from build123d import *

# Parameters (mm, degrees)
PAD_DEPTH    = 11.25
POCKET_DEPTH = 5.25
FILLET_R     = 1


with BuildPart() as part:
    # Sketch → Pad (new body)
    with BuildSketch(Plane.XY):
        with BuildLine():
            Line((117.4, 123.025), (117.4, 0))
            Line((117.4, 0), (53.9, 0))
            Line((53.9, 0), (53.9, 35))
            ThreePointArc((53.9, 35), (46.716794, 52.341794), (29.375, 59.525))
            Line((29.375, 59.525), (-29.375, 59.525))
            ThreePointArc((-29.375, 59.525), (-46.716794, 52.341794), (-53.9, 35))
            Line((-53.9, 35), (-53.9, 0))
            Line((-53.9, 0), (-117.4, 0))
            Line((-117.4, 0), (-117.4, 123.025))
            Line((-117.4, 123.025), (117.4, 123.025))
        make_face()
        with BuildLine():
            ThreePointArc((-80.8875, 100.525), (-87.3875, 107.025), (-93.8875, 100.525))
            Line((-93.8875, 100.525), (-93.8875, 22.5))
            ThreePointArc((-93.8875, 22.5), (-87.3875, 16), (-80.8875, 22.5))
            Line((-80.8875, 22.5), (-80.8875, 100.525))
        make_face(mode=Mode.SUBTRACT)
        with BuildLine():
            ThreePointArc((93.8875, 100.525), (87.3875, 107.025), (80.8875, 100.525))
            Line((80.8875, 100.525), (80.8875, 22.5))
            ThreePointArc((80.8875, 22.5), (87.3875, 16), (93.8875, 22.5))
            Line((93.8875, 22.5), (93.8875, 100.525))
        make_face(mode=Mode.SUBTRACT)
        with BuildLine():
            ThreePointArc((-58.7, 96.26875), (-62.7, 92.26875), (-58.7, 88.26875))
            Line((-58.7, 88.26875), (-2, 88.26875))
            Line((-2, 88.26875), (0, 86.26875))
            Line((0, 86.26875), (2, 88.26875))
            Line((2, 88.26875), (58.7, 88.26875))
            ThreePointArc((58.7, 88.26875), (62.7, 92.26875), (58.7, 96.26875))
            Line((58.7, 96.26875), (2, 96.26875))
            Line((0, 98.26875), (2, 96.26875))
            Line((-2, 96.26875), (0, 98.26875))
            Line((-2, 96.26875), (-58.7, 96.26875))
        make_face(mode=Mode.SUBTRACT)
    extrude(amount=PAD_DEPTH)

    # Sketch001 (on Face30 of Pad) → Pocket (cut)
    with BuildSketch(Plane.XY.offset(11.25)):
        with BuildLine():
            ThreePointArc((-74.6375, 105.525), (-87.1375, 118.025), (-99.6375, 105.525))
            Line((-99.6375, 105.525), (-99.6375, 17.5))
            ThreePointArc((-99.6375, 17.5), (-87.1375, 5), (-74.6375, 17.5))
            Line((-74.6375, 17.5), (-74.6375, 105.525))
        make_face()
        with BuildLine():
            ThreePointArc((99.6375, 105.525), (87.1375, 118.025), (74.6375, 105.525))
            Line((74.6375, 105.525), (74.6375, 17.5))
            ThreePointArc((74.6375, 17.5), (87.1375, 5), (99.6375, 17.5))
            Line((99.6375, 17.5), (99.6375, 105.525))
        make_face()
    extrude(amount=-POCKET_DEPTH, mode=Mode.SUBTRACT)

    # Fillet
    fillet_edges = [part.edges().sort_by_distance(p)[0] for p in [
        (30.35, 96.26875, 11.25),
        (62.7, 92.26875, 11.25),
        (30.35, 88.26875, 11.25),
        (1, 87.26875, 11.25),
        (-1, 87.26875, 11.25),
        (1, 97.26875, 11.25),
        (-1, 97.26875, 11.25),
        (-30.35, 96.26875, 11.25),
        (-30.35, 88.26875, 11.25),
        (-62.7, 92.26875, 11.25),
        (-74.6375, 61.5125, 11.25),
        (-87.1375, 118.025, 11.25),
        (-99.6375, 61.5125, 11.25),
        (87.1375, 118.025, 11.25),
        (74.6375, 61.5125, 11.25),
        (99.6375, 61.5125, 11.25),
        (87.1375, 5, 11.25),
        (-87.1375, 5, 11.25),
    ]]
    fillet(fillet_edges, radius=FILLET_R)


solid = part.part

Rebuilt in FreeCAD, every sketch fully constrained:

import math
import FreeCAD as App
import Part
import Sketcher

V = App.Vector


def edges_at(feature, points):
    """Names of the edges that pass closest to the given points."""
    edges = feature.Shape.Edges
    near = lambda p: min(range(len(edges)), key=lambda i: edges[i].distToShape(Part.Vertex(*p))[0])
    return sorted({f"Edge{near(p) + 1}" for p in points})

doc = App.newDocument("Part")
body = doc.addObject("PartDesign::Body", "Body")

# Sketch on XY plane
sketch1 = body.newObject("Sketcher::SketchObject", "Sketch")
sketch1.AttachmentSupport = (doc.getObject("XY_Plane"), [""])
sketch1.MapMode = "FlatFace"
sketch1.addGeometry(Part.LineSegment(V(117.4, 0, 0), V(117.4, 123, 0)), False)
sketch1.addGeometry(Part.LineSegment(V(117.4, 123, 0), V(-117.4, 123, 0)), False)
sketch1.addGeometry(Part.LineSegment(V(-117.4, 123, 0), V(-117.4, 0, 0)), False)
sketch1.addGeometry(Part.LineSegment(V(-117.4, 0, 0), V(-53.9, 0, 0)), False)
sketch1.addGeometry(Part.LineSegment(V(-53.9, 0, 0), V(-53.9, 35, 0)), False)
sketch1.addGeometry(Part.ArcOfCircle(Part.Circle(V(-29.4, 35, 0), V(0, 0, 1), 24.5), math.radians(90), math.radians(180)), False)
sketch1.addGeometry(Part.LineSegment(V(-29.4, 59.5, 0), V(29.4, 59.5, 0)), False)
sketch1.addGeometry(Part.ArcOfCircle(Part.Circle(V(29.4, 35, 0), V(0, 0, 1), 24.5), math.radians(0), math.radians(90)), False)
sketch1.addGeometry(Part.LineSegment(V(53.9, 35, 0), V(53.9, 0, 0)), False)
sketch1.addGeometry(Part.LineSegment(V(53.9, 0, 0), V(117.4, 0, 0)), False)
sketch1.addGeometry(Part.LineSegment(V(93.9, 100.5, 0), V(93.9, 22.5, 0)), False)
sketch1.addGeometry(Part.ArcOfCircle(Part.Circle(V(87.4, 22.5, 0), V(0, 0, 1), 6.5), math.radians(180), math.radians(360)), False)
sketch1.addGeometry(Part.LineSegment(V(80.9, 22.5, 0), V(80.9, 100.5, 0)), False)
sketch1.addGeometry(Part.ArcOfCircle(Part.Circle(V(87.4, 100.5, 0), V(0, 0, 1), 6.5), math.radians(0), math.radians(180)), False)
sketch1.addGeometry(Part.LineSegment(V(-80.9, 100.5, 0), V(-80.9, 22.5, 0)), False)
sketch1.addGeometry(Part.ArcOfCircle(Part.Circle(V(-87.4, 22.5, 0), V(0, 0, 1), 6.5), math.radians(180), math.radians(360)), False)
sketch1.addGeometry(Part.LineSegment(V(-93.9, 22.5, 0), V(-93.9, 100.5, 0)), False)
sketch1.addGeometry(Part.ArcOfCircle(Part.Circle(V(-87.4, 100.5, 0), V(0, 0, 1), 6.5), math.radians(0), math.radians(180)), False)
sketch1.addGeometry(Part.LineSegment(V(-58.7, 96.3, 0), V(-2, 96.3, 0)), False)
sketch1.addGeometry(Part.LineSegment(V(-2, 96.3, 0), V(0, 98.3, 0)), False)
sketch1.addGeometry(Part.LineSegment(V(0, 98.3, 0), V(2, 96.3, 0)), False)
sketch1.addGeometry(Part.LineSegment(V(2, 96.3, 0), V(58.7, 96.3, 0)), False)
sketch1.addGeometry(Part.ArcOfCircle(Part.Circle(V(58.7, 92.3, 0), V(0, 0, 1), 4), math.radians(-90), math.radians(90)), False)
sketch1.addGeometry(Part.LineSegment(V(58.7, 88.3, 0), V(2, 88.3, 0)), False)
sketch1.addGeometry(Part.LineSegment(V(2, 88.3, 0), V(0, 86.3, 0)), False)
sketch1.addGeometry(Part.LineSegment(V(0, 86.3, 0), V(-2, 88.3, 0)), False)
sketch1.addGeometry(Part.LineSegment(V(-2, 88.3, 0), V(-58.7, 88.3, 0)), False)
sketch1.addGeometry(Part.ArcOfCircle(Part.Circle(V(-58.7, 92.3, 0), V(0, 0, 1), 4), math.radians(90), math.radians(270)), False)
sketch1.addConstraint(Sketcher.Constraint("Coincident", 0, 2, 1, 1))
sketch1.addConstraint(Sketcher.Constraint("Coincident", 1, 2, 2, 1))
sketch1.addConstraint(Sketcher.Constraint("Coincident", 2, 2, 3, 1))
sketch1.addConstraint(Sketcher.Constraint("Coincident", 3, 2, 4, 1))
sketch1.addConstraint(Sketcher.Constraint("Tangent", 4, 2, 5, 2))
sketch1.addConstraint(Sketcher.Constraint("Tangent", 5, 1, 6, 1))
sketch1.addConstraint(Sketcher.Constraint("Tangent", 6, 2, 7, 2))
sketch1.addConstraint(Sketcher.Constraint("Tangent", 7, 1, 8, 1))
sketch1.addConstraint(Sketcher.Constraint("Coincident", 8, 2, 9, 1))
sketch1.addConstraint(Sketcher.Constraint("Coincident", 9, 2, 0, 1))
sketch1.addConstraint(Sketcher.Constraint("Tangent", 10, 2, 11, 2))
sketch1.addConstraint(Sketcher.Constraint("Tangent", 11, 1, 12, 1))
sketch1.addConstraint(Sketcher.Constraint("Tangent", 12, 2, 13, 2))
sketch1.addConstraint(Sketcher.Constraint("Tangent", 13, 1, 10, 1))
sketch1.addConstraint(Sketcher.Constraint("Tangent", 14, 2, 15, 2))
sketch1.addConstraint(Sketcher.Constraint("Tangent", 15, 1, 16, 1))
sketch1.addConstraint(Sketcher.Constraint("Tangent", 16, 2, 17, 2))
sketch1.addConstraint(Sketcher.Constraint("Tangent", 17, 1, 14, 1))
sketch1.addConstraint(Sketcher.Constraint("Coincident", 18, 2, 19, 1))
sketch1.addConstraint(Sketcher.Constraint("Coincident", 19, 2, 20, 1))
sketch1.addConstraint(Sketcher.Constraint("Coincident", 20, 2, 21, 1))
sketch1.addConstraint(Sketcher.Constraint("Tangent", 21, 2, 22, 2))
sketch1.addConstraint(Sketcher.Constraint("Tangent", 22, 1, 23, 1))
sketch1.addConstraint(Sketcher.Constraint("Coincident", 23, 2, 24, 1))
sketch1.addConstraint(Sketcher.Constraint("Coincident", 24, 2, 25, 1))
sketch1.addConstraint(Sketcher.Constraint("Coincident", 25, 2, 26, 1))
sketch1.addConstraint(Sketcher.Constraint("Tangent", 26, 2, 27, 2))
sketch1.addConstraint(Sketcher.Constraint("Tangent", 27, 1, 18, 1))
sketch1.addConstraint(Sketcher.Constraint("Vertical", 0))
sketch1.addConstraint(Sketcher.Constraint("Horizontal", 1))
sketch1.addConstraint(Sketcher.Constraint("Vertical", 2))
sketch1.addConstraint(Sketcher.Constraint("Horizontal", 3))
sketch1.addConstraint(Sketcher.Constraint("Vertical", 4))
sketch1.addConstraint(Sketcher.Constraint("Horizontal", 6))
sketch1.addConstraint(Sketcher.Constraint("Vertical", 8))
sketch1.addConstraint(Sketcher.Constraint("Horizontal", 9))
sketch1.addConstraint(Sketcher.Constraint("Vertical", 10))
sketch1.addConstraint(Sketcher.Constraint("Vertical", 12))
sketch1.addConstraint(Sketcher.Constraint("Vertical", 14))
sketch1.addConstraint(Sketcher.Constraint("Vertical", 16))
sketch1.addConstraint(Sketcher.Constraint("Horizontal", 18))
sketch1.addConstraint(Sketcher.Constraint("Horizontal", 21))
sketch1.addConstraint(Sketcher.Constraint("Horizontal", 23))
sketch1.addConstraint(Sketcher.Constraint("Horizontal", 26))
sketch1.addConstraint(Sketcher.Constraint("Equal", 5, 7))
sketch1.addConstraint(Sketcher.Constraint("Equal", 13, 15))
sketch1.addConstraint(Sketcher.Constraint("Equal", 22, 27))
sketch1.addConstraint(Sketcher.Constraint("Symmetric", 3, 2, 8, 2, -1, 1))
sketch1.addConstraint(Sketcher.Constraint("Symmetric", 11, 3, 15, 3, -2))
sketch1.addConstraint(Sketcher.Constraint("Symmetric", 22, 3, 27, 3, -2))
sketch1.addConstraint(Sketcher.Constraint("Symmetric", 2, 2, 9, 2, -2))
sketch1.addConstraint(Sketcher.Constraint("PointOnObject", 19, 2, -2))
sketch1.addConstraint(Sketcher.Constraint("PointOnObject", 24, 2, -2))
sketch1.addConstraint(Sketcher.Constraint("Perpendicular", 19, 20))
sketch1.addConstraint(Sketcher.Constraint("Perpendicular", 20, 24))
sketch1.addConstraint(Sketcher.Constraint("Perpendicular", 24, 25))
sketch1.addConstraint(Sketcher.Constraint("Horizontal", 13, 3, 17, 3))
sketch1.addConstraint(Sketcher.Constraint("Vertical", 20, 2, 23, 2))
sketch1.addConstraint(Sketcher.Constraint("Vertical", 18, 2, 25, 2))
sketch1.addConstraint(Sketcher.Constraint("Radius", 22, 4.0))
sketch1.addConstraint(Sketcher.Constraint("Radius", 11, 6.5))
sketch1.addConstraint(Sketcher.Constraint("DistanceY", 4, 1, 4, 2, 35.0))
sketch1.addConstraint(Sketcher.Constraint("DistanceX", 1, 2, 1, 1, 234.8))
sketch1.addConstraint(Sketcher.Constraint("DistanceX", 3, 1, 3, 2, 63.5))
sketch1.addConstraint(Sketcher.Constraint("DistanceX", 18, 1, 18, 2, 56.7))
sketch1.addConstraint(Sketcher.Constraint("DistanceX", 18, 2, -1, 1, 2.0))
sketch1.addConstraint(Sketcher.Constraint("Radius", 5, 24.524999))
sketch1.addConstraint(Sketcher.Constraint("DistanceY", 6, 2, 12, 2, 41.0))
sketch1.addConstraint(Sketcher.Constraint("DistanceY", -1, 1, 11, 3, 22.5))
sketch1.addConstraint(Sketcher.Constraint("DistanceY", 13, 3, 0, 2, 22.5))
sketch1.addConstraint(Sketcher.Constraint("DistanceX", 15, 3, 11, 3, 174.775))
sketch1.addConstraint(Sketcher.Constraint("DistanceY", -1, 1, 22, 3, 92.26875))
pad1 = body.newObject("PartDesign::Pad", "Pad")
pad1.Profile = sketch1
pad1.Length = 11.25

# Sketch on XY plane
sketch2 = body.newObject("Sketcher::SketchObject", "Sketch001")
sketch2.AttachmentSupport = (doc.getObject("XY_Plane"), [""])
sketch2.MapMode = "FlatFace"
sketch2.AttachmentOffset = App.Placement(V(0, 0, 11.25), App.Rotation())
sketch2.addGeometry(Part.ArcOfCircle(Part.Circle(V(-87, 106, 0), V(0, 0, 1), 12), math.radians(0), math.radians(180)), False)
sketch2.addGeometry(Part.LineSegment(V(-100, 106, 0), V(-100, 18, 0)), False)
sketch2.addGeometry(Part.ArcOfCircle(Part.Circle(V(-87, 18, 0), V(0, 0, 1), 12), math.radians(180), math.radians(360)), False)
sketch2.addGeometry(Part.LineSegment(V(-75, 18, 0), V(-75, 106, 0)), False)
sketch2.addGeometry(Part.ArcOfCircle(Part.Circle(V(87, 106, 0), V(0, 0, 1), 12), math.radians(0), math.radians(180)), False)
sketch2.addGeometry(Part.LineSegment(V(75, 106, 0), V(75, 18, 0)), False)
sketch2.addGeometry(Part.ArcOfCircle(Part.Circle(V(87, 18, 0), V(0, 0, 1), 12), math.radians(180), math.radians(360)), False)
sketch2.addGeometry(Part.LineSegment(V(100, 18, 0), V(100, 106, 0)), False)
sketch2.addConstraint(Sketcher.Constraint("Tangent", 0, 2, 1, 1))
sketch2.addConstraint(Sketcher.Constraint("Tangent", 1, 2, 2, 1))
sketch2.addConstraint(Sketcher.Constraint("Tangent", 2, 2, 3, 1))
sketch2.addConstraint(Sketcher.Constraint("Tangent", 3, 2, 0, 1))
sketch2.addConstraint(Sketcher.Constraint("Tangent", 4, 2, 5, 1))
sketch2.addConstraint(Sketcher.Constraint("Tangent", 5, 2, 6, 1))
sketch2.addConstraint(Sketcher.Constraint("Tangent", 6, 2, 7, 1))
sketch2.addConstraint(Sketcher.Constraint("Tangent", 7, 2, 4, 1))
sketch2.addConstraint(Sketcher.Constraint("Vertical", 1))
sketch2.addConstraint(Sketcher.Constraint("Vertical", 3))
sketch2.addConstraint(Sketcher.Constraint("Vertical", 5))
sketch2.addConstraint(Sketcher.Constraint("Vertical", 7))
sketch2.addConstraint(Sketcher.Constraint("Equal", 2, 4))
sketch2.addConstraint(Sketcher.Constraint("Symmetric", 0, 3, 4, 3, -2))
sketch2.addConstraint(Sketcher.Constraint("Horizontal", 2, 3, 6, 3))
sketch2.addConstraint(Sketcher.Constraint("Radius", 0, 12.5))
sketch2.addConstraint(Sketcher.Constraint("DistanceY", -1, 1, 2, 3, 17.5))
sketch2.addConstraint(Sketcher.Constraint("DistanceY", 1, 2, 1, 1, 88.025))
sketch2.addConstraint(Sketcher.Constraint("DistanceX", 0, 3, 4, 3, 174.275))
pocket1 = body.newObject("PartDesign::Pocket", "Pocket")
pocket1.Profile = sketch2
pocket1.Length = 5.25
doc.recompute()

fillet = body.newObject("PartDesign::Fillet", "Fillet")
fillet.Base = (pocket1, edges_at(pocket1, [
    (30.35, 96.269, 11.25),
    (62.7, 92.269, 11.25),
    (30.35, 88.269, 11.25),
    (1, 87.269, 11.25),
    (-1, 87.269, 11.25),
    (1, 97.269, 11.25),
    (-1, 97.269, 11.25),
    (-30.35, 96.269, 11.25),
    (-30.35, 88.269, 11.25),
    (-62.7, 92.269, 11.25),
    (-74.638, 61.513, 11.25),
    (-87.138, 118.025, 11.25),
    (-99.638, 61.513, 11.25),
    (87.138, 118.025, 11.25),
    (74.638, 61.513, 11.25),
    (99.638, 61.513, 11.25),
    (87.138, 5, 11.25),
    (-87.138, 5, 11.25),
]))
fillet.Radius = 1

doc.recompute()
